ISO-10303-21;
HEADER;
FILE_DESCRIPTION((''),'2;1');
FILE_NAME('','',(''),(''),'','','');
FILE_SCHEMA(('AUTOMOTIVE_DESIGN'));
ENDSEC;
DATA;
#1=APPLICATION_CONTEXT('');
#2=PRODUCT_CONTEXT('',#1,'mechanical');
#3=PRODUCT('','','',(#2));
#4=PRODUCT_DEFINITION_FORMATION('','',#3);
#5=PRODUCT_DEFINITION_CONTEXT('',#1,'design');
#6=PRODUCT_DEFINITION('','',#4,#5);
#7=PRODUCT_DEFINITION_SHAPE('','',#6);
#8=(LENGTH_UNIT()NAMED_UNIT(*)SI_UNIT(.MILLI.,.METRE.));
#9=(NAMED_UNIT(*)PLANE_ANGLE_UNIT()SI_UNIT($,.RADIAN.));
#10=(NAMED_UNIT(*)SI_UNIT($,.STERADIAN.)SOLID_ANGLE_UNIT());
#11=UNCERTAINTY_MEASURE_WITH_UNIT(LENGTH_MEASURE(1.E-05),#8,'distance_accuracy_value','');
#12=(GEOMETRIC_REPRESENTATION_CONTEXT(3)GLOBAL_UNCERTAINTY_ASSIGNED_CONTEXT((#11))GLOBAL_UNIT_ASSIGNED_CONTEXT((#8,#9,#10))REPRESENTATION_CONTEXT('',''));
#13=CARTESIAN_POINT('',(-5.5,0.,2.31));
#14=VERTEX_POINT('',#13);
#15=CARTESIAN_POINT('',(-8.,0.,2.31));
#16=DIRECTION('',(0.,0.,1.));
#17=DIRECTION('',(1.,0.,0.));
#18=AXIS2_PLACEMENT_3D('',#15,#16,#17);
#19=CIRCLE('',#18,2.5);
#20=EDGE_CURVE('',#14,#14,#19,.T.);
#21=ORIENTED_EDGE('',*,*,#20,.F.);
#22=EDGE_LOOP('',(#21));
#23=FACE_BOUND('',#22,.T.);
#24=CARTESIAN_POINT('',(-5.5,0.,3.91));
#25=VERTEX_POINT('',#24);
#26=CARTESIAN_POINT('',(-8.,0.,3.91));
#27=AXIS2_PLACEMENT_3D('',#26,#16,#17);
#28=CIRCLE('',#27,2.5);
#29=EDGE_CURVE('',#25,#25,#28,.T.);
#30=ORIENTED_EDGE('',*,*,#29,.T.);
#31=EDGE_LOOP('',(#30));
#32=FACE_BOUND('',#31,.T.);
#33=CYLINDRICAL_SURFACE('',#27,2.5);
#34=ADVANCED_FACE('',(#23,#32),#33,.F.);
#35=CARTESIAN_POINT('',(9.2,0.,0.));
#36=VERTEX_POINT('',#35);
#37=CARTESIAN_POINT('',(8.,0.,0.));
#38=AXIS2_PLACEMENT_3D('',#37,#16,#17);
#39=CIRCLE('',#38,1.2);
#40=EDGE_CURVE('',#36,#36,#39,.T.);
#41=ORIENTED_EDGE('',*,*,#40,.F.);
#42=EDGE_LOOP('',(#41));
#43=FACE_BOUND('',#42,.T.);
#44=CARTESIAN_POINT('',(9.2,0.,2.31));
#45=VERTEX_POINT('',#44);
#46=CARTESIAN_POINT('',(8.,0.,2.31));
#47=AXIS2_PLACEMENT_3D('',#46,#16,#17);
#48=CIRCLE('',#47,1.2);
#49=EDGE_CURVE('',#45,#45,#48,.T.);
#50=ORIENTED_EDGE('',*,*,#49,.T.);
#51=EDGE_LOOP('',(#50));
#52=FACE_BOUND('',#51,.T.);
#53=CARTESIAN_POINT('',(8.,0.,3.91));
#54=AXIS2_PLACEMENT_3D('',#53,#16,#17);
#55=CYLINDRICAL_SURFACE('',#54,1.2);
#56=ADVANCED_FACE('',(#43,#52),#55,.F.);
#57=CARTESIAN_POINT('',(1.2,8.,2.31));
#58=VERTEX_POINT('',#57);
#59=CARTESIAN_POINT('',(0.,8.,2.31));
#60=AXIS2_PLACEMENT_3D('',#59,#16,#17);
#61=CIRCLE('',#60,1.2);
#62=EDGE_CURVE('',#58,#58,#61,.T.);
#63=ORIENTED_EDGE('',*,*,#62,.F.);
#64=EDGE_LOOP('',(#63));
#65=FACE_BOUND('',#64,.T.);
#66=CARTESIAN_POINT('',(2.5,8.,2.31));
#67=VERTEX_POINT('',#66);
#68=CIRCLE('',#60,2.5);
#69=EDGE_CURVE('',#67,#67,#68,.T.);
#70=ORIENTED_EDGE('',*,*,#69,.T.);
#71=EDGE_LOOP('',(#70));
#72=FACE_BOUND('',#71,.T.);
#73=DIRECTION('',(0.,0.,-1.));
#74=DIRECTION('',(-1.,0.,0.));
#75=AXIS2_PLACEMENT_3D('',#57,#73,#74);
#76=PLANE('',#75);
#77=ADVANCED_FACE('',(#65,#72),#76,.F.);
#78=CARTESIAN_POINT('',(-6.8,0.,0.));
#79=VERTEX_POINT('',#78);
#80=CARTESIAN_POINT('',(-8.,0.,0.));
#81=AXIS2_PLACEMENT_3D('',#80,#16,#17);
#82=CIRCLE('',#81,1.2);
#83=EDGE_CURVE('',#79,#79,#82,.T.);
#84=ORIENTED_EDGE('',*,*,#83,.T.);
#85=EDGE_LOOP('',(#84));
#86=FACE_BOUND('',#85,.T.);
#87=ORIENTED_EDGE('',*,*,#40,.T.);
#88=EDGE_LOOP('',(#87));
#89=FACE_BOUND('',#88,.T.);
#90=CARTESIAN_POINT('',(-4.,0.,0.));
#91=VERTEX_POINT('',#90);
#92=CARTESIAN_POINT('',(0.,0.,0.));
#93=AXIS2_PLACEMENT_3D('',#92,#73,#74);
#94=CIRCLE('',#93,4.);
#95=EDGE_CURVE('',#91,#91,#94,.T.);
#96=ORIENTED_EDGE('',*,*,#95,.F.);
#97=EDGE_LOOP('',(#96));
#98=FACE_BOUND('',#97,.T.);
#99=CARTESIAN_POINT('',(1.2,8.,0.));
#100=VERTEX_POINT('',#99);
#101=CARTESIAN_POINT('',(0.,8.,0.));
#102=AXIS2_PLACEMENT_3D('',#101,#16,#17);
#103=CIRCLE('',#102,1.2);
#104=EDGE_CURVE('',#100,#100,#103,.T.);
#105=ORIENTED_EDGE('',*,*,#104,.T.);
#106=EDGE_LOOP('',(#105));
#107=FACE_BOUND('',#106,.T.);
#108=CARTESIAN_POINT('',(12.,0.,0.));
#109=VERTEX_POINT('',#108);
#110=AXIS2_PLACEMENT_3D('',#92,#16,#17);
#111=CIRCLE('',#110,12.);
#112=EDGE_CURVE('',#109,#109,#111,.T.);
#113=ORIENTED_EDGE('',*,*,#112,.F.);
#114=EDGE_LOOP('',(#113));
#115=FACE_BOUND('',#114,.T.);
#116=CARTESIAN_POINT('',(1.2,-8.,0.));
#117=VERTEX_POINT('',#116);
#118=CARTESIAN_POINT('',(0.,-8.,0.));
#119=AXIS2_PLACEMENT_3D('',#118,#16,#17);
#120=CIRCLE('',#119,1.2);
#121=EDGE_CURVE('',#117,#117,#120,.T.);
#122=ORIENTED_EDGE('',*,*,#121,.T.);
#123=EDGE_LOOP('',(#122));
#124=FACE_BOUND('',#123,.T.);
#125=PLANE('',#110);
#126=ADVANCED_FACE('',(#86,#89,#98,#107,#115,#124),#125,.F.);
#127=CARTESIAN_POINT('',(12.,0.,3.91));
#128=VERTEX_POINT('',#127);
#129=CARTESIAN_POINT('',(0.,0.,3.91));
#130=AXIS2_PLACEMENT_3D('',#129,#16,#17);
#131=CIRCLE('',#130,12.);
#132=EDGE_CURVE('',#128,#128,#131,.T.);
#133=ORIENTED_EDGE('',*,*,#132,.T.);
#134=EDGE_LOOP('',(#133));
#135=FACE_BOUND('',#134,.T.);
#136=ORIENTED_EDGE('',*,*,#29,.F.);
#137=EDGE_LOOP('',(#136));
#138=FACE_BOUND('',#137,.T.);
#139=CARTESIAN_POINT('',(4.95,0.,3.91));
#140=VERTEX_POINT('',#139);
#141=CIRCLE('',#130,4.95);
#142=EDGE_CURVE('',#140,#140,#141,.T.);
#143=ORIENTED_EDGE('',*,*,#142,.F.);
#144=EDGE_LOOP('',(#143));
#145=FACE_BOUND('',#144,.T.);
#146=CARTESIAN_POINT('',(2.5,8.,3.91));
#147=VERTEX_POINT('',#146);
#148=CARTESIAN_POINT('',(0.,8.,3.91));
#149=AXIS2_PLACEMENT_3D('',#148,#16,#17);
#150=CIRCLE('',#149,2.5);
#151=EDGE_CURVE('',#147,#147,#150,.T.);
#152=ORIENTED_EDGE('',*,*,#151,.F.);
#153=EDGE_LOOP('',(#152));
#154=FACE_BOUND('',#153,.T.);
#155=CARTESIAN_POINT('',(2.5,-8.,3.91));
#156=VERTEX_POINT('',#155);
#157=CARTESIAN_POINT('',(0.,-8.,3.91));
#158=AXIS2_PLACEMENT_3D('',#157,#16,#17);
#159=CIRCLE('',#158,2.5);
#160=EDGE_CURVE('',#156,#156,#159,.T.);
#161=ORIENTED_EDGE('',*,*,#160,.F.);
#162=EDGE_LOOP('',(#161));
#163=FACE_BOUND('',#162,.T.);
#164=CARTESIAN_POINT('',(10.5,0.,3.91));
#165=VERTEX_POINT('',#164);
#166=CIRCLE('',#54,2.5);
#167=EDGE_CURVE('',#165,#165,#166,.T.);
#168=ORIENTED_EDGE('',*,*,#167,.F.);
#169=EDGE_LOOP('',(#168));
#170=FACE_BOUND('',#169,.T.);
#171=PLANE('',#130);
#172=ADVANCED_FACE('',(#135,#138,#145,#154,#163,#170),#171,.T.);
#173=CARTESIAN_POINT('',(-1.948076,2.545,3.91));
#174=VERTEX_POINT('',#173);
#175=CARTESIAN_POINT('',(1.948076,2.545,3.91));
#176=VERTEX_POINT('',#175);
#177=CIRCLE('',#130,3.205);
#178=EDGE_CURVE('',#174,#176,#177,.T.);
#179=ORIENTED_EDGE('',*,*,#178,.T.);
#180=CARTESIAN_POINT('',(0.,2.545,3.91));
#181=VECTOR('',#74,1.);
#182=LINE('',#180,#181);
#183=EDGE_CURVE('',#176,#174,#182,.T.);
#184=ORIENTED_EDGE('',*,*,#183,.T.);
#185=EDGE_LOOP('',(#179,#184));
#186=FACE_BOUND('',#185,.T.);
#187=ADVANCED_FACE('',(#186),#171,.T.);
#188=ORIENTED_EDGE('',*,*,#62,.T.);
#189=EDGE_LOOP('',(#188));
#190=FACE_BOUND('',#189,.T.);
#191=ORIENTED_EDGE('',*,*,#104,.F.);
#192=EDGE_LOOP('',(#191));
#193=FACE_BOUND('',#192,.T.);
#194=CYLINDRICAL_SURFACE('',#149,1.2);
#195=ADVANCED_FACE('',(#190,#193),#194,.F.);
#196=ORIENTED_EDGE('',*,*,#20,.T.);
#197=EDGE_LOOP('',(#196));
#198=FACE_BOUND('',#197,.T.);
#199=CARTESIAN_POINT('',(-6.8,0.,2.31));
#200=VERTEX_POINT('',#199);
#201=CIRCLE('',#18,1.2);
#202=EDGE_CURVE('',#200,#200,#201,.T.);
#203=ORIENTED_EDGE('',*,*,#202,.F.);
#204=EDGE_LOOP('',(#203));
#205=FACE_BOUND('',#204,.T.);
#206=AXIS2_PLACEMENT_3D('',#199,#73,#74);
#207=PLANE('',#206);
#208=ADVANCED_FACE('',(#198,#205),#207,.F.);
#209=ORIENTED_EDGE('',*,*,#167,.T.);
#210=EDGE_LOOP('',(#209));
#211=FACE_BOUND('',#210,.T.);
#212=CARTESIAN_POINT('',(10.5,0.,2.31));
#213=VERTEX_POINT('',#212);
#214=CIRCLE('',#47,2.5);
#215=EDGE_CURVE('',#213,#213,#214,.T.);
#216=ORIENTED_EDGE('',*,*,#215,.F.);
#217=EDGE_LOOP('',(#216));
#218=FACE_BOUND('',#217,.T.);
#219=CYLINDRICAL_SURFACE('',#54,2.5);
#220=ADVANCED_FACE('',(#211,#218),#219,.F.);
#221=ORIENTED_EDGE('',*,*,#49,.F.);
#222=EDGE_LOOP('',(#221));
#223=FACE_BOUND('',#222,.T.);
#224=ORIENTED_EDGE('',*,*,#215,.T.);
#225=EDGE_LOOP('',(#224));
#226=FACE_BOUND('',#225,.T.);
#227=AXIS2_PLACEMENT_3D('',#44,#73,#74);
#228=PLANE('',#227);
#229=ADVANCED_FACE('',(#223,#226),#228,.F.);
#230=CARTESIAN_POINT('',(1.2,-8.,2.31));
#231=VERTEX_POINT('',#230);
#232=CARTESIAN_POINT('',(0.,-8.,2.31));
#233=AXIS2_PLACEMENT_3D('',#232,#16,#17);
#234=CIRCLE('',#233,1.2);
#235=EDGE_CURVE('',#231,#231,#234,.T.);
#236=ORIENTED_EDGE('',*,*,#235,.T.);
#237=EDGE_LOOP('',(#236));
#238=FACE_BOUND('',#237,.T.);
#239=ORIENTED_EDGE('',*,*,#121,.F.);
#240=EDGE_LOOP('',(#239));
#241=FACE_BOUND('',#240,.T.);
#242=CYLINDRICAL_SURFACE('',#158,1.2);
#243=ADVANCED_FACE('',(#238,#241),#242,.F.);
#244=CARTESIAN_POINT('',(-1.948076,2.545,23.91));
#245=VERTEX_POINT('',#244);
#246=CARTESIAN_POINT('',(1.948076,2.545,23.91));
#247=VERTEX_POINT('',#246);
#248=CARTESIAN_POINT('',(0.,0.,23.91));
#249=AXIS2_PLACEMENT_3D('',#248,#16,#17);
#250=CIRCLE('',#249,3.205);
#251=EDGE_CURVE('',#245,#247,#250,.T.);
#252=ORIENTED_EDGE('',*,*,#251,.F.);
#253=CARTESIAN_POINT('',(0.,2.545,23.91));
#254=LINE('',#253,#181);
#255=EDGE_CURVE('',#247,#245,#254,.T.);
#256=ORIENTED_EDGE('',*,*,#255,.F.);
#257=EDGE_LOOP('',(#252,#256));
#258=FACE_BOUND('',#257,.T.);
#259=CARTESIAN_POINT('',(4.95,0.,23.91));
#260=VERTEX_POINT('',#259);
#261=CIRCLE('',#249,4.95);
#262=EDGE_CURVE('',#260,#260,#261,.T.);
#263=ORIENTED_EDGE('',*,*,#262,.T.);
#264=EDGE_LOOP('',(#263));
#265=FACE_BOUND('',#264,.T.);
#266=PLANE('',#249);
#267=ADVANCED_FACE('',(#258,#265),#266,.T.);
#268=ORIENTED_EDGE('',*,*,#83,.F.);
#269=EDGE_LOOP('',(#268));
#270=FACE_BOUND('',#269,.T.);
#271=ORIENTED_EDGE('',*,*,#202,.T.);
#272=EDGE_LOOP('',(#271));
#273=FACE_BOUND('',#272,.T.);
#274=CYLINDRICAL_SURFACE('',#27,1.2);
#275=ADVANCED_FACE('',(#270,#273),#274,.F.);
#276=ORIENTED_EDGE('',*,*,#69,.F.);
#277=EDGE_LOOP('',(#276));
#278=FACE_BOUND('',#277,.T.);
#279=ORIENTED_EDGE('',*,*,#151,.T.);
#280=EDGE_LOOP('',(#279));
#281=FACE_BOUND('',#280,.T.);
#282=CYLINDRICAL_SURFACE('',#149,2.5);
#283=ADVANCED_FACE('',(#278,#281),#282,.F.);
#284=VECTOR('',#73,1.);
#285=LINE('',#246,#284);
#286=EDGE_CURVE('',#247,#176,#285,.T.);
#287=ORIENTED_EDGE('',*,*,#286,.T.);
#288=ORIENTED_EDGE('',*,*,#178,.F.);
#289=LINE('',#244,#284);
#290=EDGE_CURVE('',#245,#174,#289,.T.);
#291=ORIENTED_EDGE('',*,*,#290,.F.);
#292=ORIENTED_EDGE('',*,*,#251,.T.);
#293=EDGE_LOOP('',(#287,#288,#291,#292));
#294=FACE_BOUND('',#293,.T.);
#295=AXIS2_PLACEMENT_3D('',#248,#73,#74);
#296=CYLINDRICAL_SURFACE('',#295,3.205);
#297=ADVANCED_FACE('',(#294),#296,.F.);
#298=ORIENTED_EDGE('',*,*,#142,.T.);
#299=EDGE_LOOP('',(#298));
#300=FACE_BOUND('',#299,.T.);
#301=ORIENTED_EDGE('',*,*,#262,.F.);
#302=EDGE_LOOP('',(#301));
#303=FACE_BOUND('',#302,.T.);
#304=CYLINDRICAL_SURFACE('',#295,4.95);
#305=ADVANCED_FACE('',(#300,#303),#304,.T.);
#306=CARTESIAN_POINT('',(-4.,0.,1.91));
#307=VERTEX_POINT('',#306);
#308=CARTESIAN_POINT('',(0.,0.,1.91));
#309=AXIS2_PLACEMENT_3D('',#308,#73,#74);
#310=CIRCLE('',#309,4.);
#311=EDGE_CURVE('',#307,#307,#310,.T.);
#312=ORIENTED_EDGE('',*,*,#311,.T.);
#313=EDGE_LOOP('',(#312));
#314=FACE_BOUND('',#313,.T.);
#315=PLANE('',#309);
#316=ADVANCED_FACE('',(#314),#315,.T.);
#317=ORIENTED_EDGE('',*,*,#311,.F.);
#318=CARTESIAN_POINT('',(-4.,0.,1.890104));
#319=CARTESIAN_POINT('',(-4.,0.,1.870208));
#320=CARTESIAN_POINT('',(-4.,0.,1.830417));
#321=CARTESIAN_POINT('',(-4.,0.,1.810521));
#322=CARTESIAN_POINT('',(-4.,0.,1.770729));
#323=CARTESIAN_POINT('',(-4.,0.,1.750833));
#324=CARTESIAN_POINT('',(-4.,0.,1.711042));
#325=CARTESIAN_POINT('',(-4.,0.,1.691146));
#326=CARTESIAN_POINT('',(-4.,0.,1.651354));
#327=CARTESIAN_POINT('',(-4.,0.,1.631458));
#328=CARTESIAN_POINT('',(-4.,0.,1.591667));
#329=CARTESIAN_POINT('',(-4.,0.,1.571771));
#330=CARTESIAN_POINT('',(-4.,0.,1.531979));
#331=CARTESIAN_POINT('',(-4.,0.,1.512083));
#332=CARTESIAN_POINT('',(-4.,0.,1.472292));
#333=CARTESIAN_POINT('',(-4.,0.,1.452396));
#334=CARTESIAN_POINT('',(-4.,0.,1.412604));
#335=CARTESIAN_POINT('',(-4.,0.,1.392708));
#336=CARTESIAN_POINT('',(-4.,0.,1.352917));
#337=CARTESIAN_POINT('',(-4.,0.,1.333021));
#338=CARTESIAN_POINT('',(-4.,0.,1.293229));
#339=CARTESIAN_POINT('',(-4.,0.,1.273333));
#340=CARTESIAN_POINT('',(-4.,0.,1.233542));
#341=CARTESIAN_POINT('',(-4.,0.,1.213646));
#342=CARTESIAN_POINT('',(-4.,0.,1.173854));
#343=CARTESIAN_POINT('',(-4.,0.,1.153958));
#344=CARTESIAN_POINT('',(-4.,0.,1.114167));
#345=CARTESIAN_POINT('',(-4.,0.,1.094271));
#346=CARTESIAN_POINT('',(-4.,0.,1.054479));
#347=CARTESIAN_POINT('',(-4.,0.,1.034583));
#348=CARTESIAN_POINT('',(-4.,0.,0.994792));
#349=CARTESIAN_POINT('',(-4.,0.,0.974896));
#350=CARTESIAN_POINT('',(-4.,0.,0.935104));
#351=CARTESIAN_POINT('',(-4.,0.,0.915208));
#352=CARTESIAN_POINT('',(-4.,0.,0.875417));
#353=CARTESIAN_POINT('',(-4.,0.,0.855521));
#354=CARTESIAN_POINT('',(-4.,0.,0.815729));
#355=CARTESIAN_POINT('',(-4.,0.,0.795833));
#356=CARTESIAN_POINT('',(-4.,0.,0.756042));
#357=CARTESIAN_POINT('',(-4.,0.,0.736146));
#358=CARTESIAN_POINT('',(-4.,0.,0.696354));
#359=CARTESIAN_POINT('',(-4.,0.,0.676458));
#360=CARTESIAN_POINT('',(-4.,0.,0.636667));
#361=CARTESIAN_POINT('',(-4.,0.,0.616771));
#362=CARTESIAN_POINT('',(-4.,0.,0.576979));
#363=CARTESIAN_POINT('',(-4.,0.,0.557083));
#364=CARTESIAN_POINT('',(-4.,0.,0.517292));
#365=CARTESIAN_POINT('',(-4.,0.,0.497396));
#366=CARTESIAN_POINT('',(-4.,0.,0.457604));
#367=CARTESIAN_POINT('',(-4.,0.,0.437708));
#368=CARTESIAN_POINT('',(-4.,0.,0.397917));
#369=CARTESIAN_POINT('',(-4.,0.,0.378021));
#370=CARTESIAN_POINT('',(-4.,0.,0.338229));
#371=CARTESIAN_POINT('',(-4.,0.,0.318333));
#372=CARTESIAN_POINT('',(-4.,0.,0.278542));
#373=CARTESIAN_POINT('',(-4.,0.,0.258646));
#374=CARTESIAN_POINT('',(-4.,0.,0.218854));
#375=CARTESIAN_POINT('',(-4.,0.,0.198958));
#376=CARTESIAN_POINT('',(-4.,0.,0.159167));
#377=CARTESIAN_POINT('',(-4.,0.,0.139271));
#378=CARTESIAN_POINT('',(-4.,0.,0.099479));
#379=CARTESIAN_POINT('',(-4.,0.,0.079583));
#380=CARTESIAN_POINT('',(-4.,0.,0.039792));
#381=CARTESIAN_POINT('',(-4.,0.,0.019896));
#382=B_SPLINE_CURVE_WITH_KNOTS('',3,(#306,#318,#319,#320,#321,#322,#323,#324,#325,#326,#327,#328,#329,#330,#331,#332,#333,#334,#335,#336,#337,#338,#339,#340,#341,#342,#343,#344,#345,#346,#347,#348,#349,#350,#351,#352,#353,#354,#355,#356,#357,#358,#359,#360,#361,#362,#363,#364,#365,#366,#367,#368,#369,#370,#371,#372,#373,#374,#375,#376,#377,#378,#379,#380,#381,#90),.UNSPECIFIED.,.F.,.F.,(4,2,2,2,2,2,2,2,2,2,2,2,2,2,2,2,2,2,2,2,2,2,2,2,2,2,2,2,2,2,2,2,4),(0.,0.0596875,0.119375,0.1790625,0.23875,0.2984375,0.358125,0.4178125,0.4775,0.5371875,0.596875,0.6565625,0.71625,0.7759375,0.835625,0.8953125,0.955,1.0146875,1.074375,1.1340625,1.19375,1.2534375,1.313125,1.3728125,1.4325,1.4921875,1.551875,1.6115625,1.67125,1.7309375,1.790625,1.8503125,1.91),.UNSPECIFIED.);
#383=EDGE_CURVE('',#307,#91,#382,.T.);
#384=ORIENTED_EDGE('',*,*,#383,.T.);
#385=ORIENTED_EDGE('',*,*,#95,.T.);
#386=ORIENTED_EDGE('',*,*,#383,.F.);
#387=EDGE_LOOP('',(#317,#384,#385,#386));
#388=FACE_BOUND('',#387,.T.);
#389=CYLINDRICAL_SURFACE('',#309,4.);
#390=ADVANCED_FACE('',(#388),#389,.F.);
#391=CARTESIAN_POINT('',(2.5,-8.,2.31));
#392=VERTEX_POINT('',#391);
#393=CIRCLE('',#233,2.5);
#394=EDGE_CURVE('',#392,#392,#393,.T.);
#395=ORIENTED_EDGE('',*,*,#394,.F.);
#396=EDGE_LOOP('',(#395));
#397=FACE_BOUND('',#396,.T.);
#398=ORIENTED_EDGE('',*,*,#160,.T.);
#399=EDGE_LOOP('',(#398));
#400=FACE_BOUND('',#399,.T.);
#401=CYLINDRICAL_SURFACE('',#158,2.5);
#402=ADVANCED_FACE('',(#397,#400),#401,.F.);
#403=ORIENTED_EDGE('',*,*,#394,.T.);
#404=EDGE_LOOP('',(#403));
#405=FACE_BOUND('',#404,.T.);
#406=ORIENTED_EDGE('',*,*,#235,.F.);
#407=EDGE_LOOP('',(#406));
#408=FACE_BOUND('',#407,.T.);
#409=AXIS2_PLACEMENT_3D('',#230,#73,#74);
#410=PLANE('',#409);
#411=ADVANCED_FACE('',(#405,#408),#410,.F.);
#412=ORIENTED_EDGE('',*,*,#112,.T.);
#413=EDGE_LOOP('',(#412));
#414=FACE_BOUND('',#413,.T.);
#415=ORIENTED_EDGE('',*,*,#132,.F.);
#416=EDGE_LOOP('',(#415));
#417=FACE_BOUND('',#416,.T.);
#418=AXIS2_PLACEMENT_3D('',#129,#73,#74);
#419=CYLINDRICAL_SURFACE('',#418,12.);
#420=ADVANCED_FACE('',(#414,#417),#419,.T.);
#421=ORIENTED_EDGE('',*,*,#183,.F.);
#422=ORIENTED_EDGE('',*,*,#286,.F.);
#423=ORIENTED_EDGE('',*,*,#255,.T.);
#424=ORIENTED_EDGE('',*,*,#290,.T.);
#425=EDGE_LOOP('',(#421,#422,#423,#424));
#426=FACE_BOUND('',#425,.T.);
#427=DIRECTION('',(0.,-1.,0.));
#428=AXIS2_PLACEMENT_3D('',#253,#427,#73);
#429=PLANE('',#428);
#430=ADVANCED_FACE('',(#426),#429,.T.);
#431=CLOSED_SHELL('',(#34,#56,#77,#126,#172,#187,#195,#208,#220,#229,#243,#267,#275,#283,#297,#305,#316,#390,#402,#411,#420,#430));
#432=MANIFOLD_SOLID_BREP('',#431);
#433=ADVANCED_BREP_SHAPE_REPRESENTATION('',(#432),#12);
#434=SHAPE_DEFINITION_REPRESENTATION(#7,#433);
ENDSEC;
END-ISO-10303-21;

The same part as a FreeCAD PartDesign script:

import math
import FreeCAD as App
import Part
import Sketcher

V = App.Vector
Q = App.Units.Quantity

doc = App.newDocument("Part")
body = doc.addObject("PartDesign::Body", "Body")

sketch1 = body.newObject("Sketcher::SketchObject", "Sketch")
sketch1.AttachmentSupport = (doc.getObject("XY_Plane"), [""])
sketch1.MapMode = "FlatFace"
sketch1.addGeometry(Part.Circle(V(0, 0, 0), V(0, 0, 1), 12), False)
sketch1.addConstraint([
    Sketcher.Constraint("Coincident", 0, 3, -1, 1),
    Sketcher.Constraint("Diameter", 0, Q("24 mm")),
])
pad1 = body.newObject("PartDesign::Pad", "Pad")
pad1.Profile = sketch1
pad1.Length = 3.91

sketch2 = body.newObject("Sketcher::SketchObject", "Sketch001")
sketch2.AttachmentSupport = (doc.getObject("XY_Plane"), [""])
sketch2.MapMode = "FlatFace"
sketch2.addGeometry(Part.Circle(V(0, 0, 0), V(0, 0, 1), 4), False)
sketch2.addConstraint([
    Sketcher.Constraint("Coincident", 0, 3, -1, 1),
    Sketcher.Constraint("Diameter", 0, Q("8 mm")),
])
pocket1 = body.newObject("PartDesign::Pocket", "Pocket")
pocket1.Profile = sketch2
pocket1.Length = 1.91
pocket1.Reversed = True

sketch3 = body.newObject("Sketcher::SketchObject", "Sketch002")
sketch3.AttachmentSupport = (doc.getObject("XY_Plane"), [""])
sketch3.MapMode = "FlatFace"
sketch3.AttachmentOffset = App.Placement(V(0, 0, 3.91), App.Rotation())
sketch3.addGeometry([
    Part.Circle(V(0, 0, 0), V(0, 0, 1), 4.95),
    Part.LineSegment(V(-1.948076, 2.545, 0), V(1.948076, 2.545, 0)),
    Part.ArcOfCircle(Part.Circle(V(0, 0, 0), V(0, 0, 1), 3.205), math.radians(127.432331), math.radians(412.567669)),
], False)
sketch3.addConstraint([
    Sketcher.Constraint("Coincident", 1, 1, 2, 1),
    Sketcher.Constraint("Coincident", 2, 2, 1, 2),
    Sketcher.Constraint("Horizontal", 1),
    Sketcher.Constraint("Coincident", 0, 3, -1, 1),
    Sketcher.Constraint("Coincident", 2, 3, -1, 1),
    Sketcher.Constraint("Diameter", 0, Q("9.9 mm")),
    Sketcher.Constraint("Radius", 2, Q("3.205 mm")),
    Sketcher.Constraint("DistanceY", -1, 1, 1, 1, Q("2.545 mm")),
])
pad2 = body.newObject("PartDesign::Pad", "Pad001")
pad2.Profile = sketch3
pad2.Length = 20

sketch4 = body.newObject("Sketcher::SketchObject", "Sketch003")
sketch4.AttachmentSupport = (doc.getObject("XY_Plane"), [""])
sketch4.MapMode = "FlatFace"
sketch4.AttachmentOffset = App.Placement(V(0, 0, 3.91), App.Rotation())
sketch4.addGeometry(Part.Circle(V(0, 8, 0), V(0, 0, 1), 1.2), False)
sketch4.addConstraint([
    Sketcher.Constraint("PointOnObject", 0, 3, -2),
    Sketcher.Constraint("Diameter", 0, Q("2.4 mm")),
    Sketcher.Constraint("DistanceY", -1, 1, 0, 3, Q("8 mm")),
])
doc.recompute()
hole = body.newObject("PartDesign::Hole", "Hole")
hole.Profile = sketch4
hole.ThreadType = "None"
hole.Diameter = 2.4
hole.DepthType = "ThroughAll"
hole.HoleCutType = "Counterbore"
hole.HoleCutDiameter = 5
hole.HoleCutDepth = 1.6
doc.recompute()

polarpattern = body.newObject("PartDesign::PolarPattern", "PolarPattern")
polarpattern.Originals = [hole]
polarpattern.Axis = (doc.getObject("Z_Axis"), [""])
polarpattern.Angle = 360
polarpattern.Occurrences = 4
body.Tip = polarpattern

doc.recompute()
